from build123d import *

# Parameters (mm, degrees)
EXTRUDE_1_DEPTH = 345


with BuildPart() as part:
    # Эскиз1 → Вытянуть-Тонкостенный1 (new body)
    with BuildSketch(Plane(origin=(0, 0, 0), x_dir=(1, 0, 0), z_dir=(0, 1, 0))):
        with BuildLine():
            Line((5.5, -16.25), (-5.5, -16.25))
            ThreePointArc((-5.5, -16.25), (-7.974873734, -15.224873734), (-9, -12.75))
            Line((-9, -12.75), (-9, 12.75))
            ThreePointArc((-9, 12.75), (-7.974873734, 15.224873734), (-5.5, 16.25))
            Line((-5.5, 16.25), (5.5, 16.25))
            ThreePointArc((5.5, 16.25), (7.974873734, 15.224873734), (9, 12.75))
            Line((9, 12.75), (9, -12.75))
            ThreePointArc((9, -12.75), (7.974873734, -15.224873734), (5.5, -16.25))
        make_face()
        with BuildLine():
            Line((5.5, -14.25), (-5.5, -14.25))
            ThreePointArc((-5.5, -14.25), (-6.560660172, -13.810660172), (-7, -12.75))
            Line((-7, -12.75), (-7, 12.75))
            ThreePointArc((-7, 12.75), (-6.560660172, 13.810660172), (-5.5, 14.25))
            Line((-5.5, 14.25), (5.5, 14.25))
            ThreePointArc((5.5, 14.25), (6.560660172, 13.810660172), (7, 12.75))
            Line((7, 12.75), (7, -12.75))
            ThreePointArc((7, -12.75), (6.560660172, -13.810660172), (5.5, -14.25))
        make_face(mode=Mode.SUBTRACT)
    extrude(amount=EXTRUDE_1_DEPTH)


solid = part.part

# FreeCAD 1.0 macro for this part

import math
import FreeCAD as App
import Part
import Sketcher

V = App.Vector
Q = App.Units.Quantity

doc = App.newDocument("Part")
body = doc.addObject("PartDesign::Body", "Body")

# Sketch on XZ plane
sketch1 = body.newObject("Sketcher::SketchObject", "Sketch")
sketch1.AttachmentSupport = (doc.getObject("XZ_Plane"), [""])
sketch1.MapMode = "FlatFace"
sketch1.addGeometry([
    Part.LineSegment(V(-5.5, 16.25, 0), V(5.5, 16.25, 0)),  # 0
    Part.ArcOfCircle(Part.Circle(V(5.5, 12.75, 0), V(0, 0, 1), 3.5), math.radians(0), math.radians(90)),  # 1
    Part.LineSegment(V(9, 12.75, 0), V(9, -12.75, 0)),  # 2
    Part.ArcOfCircle(Part.Circle(V(5.5, -12.75, 0), V(0, 0, 1), 3.5), math.radians(-90), math.radians(0)),  # 3
    Part.LineSegment(V(5.5, -16.25, 0), V(-5.5, -16.25, 0)),  # 4
    Part.ArcOfCircle(Part.Circle(V(-5.5, -12.75, 0), V(0, 0, 1), 3.5), math.radians(-180), math.radians(-90)),  # 5
    Part.LineSegment(V(-9, -12.75, 0), V(-9, 12.75, 0)),  # 6
    Part.ArcOfCircle(Part.Circle(V(-5.5, 12.75, 0), V(0, 0, 1), 3.5), math.radians(90), math.radians(180)),  # 7
    Part.LineSegment(V(5.5, 14.25, 0), V(-5.5, 14.25, 0)),  # 8
    Part.ArcOfCircle(Part.Circle(V(-5.5, 12.75, 0), V(0, 0, 1), 1.5), math.radians(90), math.radians(180)),  # 9
    Part.LineSegment(V(-7, 12.75, 0), V(-7, -12.75, 0)),  # 10
    Part.ArcOfCircle(Part.Circle(V(-5.5, -12.75, 0), V(0, 0, 1), 1.5), math.radians(180), math.radians(270)),  # 11
    Part.LineSegment(V(-5.5, -14.25, 0), V(5.5, -14.25, 0)),  # 12
    Part.ArcOfCircle(Part.Circle(V(5.5, -12.75, 0), V(0, 0, 1), 1.5), math.radians(-90), math.radians(0)),  # 13
    Part.LineSegment(V(7, -12.75, 0), V(7, 12.75, 0)),  # 14
    Part.ArcOfCircle(Part.Circle(V(5.5, 12.75, 0), V(0, 0, 1), 1.5), math.radians(0), math.radians(90)),  # 15
], False)
sketch1.addConstraint([
    Sketcher.Constraint("Tangent", 0, 2, 1, 2),
    Sketcher.Constraint("Tangent", 1, 1, 2, 1),
    Sketcher.Constraint("Tangent", 2, 2, 3, 2),
    Sketcher.Constraint("Tangent", 3, 1, 4, 1),
    Sketcher.Constraint("Tangent", 4, 2, 5, 2),
    Sketcher.Constraint("Tangent", 5, 1, 6, 1),
    Sketcher.Constraint("Tangent", 6, 2, 7, 2),
    Sketcher.Constraint("Tangent", 7, 1, 0, 1),
    Sketcher.Constraint("Tangent", 8, 2, 9, 1),
    Sketcher.Constraint("Tangent", 9, 2, 10, 1),
    Sketcher.Constraint("Tangent", 10, 2, 11, 1),
    Sketcher.Constraint("Tangent", 11, 2, 12, 1),
    Sketcher.Constraint("Tangent", 12, 2, 13, 1),
    Sketcher.Constraint("Tangent", 13, 2, 14, 1),
    Sketcher.Constraint("Tangent", 14, 2, 15, 1),
    Sketcher.Constraint("Tangent", 15, 2, 8, 1),
    Sketcher.Constraint("Horizontal", 0),
    Sketcher.Constraint("Vertical", 2),
    Sketcher.Constraint("Horizontal", 4),
    Sketcher.Constraint("Vertical", 6),
    Sketcher.Constraint("Horizontal", 8),
    Sketcher.Constraint("Vertical", 10),
    Sketcher.Constraint("Horizontal", 12),
    Sketcher.Constraint("Vertical", 14),
    Sketcher.Constraint("Coincident", 9, 3, 7, 3),
    Sketcher.Constraint("Coincident", 11, 3, 5, 3),
    Sketcher.Constraint("Coincident", 13, 3, 3, 3),
    Sketcher.Constraint("Equal", 1, 3),
    Sketcher.Constraint("Equal", 3, 5),
    Sketcher.Constraint("Equal", 5, 7),
    Sketcher.Constraint("Equal", 13, 15),
    Sketcher.Constraint("Symmetric", 1, 3, 5, 3, -1, 1),
    Sketcher.Constraint("Radius", 1, Q("3.5 mm")),
    Sketcher.Constraint("Radius", 9, Q("1.5 mm")),
    Sketcher.Constraint("DistanceX", 0, 1, 0, 2, Q("11 mm")),
    Sketcher.Constraint("DistanceY", 2, 2, 2, 1, Q("25.5 mm")),
])
pad1 = body.newObject("PartDesign::Pad", "Pad")
pad1.Profile = sketch1
pad1.Length = 345
pad1.Reversed = True

doc.recompute()
